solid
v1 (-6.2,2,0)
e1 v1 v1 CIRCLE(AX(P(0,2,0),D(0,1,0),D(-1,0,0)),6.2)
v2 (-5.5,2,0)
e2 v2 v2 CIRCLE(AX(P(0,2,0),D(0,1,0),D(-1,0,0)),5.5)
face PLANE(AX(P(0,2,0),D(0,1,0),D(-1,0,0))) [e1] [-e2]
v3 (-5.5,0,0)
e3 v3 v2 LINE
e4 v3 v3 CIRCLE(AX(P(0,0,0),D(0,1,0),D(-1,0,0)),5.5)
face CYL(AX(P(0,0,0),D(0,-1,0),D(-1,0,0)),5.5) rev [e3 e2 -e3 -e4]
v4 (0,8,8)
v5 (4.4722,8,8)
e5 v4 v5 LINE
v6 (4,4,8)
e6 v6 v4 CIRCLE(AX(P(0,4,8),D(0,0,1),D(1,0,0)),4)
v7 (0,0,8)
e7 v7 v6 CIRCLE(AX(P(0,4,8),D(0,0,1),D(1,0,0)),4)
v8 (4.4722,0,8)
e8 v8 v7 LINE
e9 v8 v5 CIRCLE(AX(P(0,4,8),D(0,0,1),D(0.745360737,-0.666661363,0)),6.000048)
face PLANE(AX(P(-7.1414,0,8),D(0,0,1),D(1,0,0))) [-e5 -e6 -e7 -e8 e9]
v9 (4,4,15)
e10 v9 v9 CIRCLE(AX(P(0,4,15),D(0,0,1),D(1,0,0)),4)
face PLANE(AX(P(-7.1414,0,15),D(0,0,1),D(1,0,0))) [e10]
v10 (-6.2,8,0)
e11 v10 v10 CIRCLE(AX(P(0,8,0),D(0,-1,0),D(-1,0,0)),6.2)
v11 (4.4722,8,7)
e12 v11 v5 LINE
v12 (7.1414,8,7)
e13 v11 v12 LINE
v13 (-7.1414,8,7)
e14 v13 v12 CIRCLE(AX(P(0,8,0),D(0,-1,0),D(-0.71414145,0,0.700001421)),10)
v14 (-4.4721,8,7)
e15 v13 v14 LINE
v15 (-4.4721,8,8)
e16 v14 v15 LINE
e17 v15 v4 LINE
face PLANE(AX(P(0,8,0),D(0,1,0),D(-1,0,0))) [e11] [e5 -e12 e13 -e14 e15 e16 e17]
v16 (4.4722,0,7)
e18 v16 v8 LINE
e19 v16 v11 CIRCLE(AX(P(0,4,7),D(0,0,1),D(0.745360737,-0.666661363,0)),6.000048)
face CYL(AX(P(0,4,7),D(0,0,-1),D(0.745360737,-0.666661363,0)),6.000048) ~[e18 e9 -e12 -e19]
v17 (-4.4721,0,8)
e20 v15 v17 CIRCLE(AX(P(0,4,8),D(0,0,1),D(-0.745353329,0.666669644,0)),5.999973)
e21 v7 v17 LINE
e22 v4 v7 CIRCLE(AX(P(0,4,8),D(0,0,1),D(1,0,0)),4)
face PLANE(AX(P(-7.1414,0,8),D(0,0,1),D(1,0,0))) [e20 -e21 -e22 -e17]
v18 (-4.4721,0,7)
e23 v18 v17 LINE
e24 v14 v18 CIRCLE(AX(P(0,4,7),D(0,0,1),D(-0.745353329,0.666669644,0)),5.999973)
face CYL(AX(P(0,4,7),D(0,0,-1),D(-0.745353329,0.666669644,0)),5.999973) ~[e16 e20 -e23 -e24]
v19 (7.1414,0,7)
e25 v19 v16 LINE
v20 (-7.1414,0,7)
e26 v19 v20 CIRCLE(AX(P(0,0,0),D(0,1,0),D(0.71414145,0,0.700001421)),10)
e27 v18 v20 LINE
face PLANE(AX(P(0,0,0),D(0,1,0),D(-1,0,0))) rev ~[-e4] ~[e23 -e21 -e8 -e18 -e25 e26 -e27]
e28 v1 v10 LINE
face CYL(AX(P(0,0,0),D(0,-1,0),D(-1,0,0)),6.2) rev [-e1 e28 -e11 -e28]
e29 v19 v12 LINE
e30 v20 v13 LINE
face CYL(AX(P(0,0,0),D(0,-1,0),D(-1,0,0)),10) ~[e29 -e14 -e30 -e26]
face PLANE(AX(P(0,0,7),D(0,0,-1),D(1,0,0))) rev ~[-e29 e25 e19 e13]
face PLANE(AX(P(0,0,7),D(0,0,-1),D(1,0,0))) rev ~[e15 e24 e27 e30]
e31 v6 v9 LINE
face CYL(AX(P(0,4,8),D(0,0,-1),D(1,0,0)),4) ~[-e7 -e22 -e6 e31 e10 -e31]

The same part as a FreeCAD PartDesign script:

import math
import FreeCAD as App
import Part
import Sketcher

doc = App.newDocument("Part")
body = doc.addObject("PartDesign::Body", "Body")

# Sketch on XZ plane
sketch1 = doc.addObject("Sketcher::SketchObject", "Sketch")
body.addObject(sketch1)
sketch1.AttachmentSupport = (doc.XZ_Plane, [""])
sketch1.MapMode = "FlatFace"
sketch1.addGeometry(Part.LineSegment(App.Vector(-7, 7, 0), App.Vector(7, 7, 0)), False)
sketch1.addGeometry(Part.ArcOfCircle(Part.Circle(App.Vector(0, 0, 0), App.Vector(0, 0, 1), 10), math.radians(136), math.radians(404)), False)
sketch1.addGeometry(Part.Circle(App.Vector(0, 0, 0), App.Vector(0, 0, 1), 6), False)
sketch1.addConstraint(Sketcher.Constraint("Coincident", 0, 1, 1, 1))
sketch1.addConstraint(Sketcher.Constraint("Coincident", 1, 2, 0, 2))
sketch1.addConstraint(Sketcher.Constraint("Horizontal", 0))
sketch1.addConstraint(Sketcher.Constraint("Coincident", 1, 3, -1, 1))
sketch1.addConstraint(Sketcher.Constraint("Coincident", 2, 3, -1, 1))
sketch1.addConstraint(Sketcher.Constraint("Radius", 1, 10.0))
sketch1.addConstraint(Sketcher.Constraint("Diameter", 2, 12.4))
sketch1.addConstraint(Sketcher.Constraint("DistanceY", -1, 1, 0, 1, 7.0))
pad1 = doc.addObject("PartDesign::Pad", "Pad")
body.addObject(pad1)
pad1.Profile = sketch1
pad1.Length = 8
pad1.Reversed = True

# Sketch on XY plane
sketch2 = doc.addObject("Sketcher::SketchObject", "Sketch001")
body.addObject(sketch2)
sketch2.AttachmentSupport = (doc.XY_Plane, [""])
sketch2.MapMode = "FlatFace"
sketch2.AttachmentOffset = App.Placement(App.Vector(0, 0, 7), App.Rotation())
sketch2.addGeometry(Part.ArcOfCircle(Part.Circle(App.Vector(0, 4, 0), App.Vector(0, 0, 1), 6), math.radians(138), math.radians(222)), False)
sketch2.addGeometry(Part.LineSegment(App.Vector(-4, 0, 0), App.Vector(4, 0, 0)), False)
sketch2.addGeometry(Part.ArcOfCircle(Part.Circle(App.Vector(0, 4, 0), App.Vector(0, 0, 1), 6), math.radians(-42), math.radians(42)), False)
sketch2.addGeometry(Part.LineSegment(App.Vector(4, 8, 0), App.Vector(-4, 8, 0)), False)
sketch2.addConstraint(Sketcher.Constraint("Coincident", 0, 2, 1, 1))
sketch2.addConstraint(Sketcher.Constraint("Coincident", 1, 2, 2, 1))
sketch2.addConstraint(Sketcher.Constraint("Coincident", 2, 2, 3, 1))
sketch2.addConstraint(Sketcher.Constraint("Coincident", 3, 2, 0, 1))
sketch2.addConstraint(Sketcher.Constraint("Horizontal", 1))
sketch2.addConstraint(Sketcher.Constraint("Horizontal", 3))
sketch2.addConstraint(Sketcher.Constraint("Coincident", 2, 3, 0, 3))
sketch2.addConstraint(Sketcher.Constraint("Equal", 0, 2))
sketch2.addConstraint(Sketcher.Constraint("Symmetric", 0, 2, 1, 2, -1, 1))
sketch2.addConstraint(Sketcher.Constraint("Vertical", 1, 2, 2, 2))
sketch2.addConstraint(Sketcher.Constraint("Radius", 0, 6.0))
sketch2.addConstraint(Sketcher.Constraint("DistanceY", -1, 1, 0, 3, 4.0))
pad2 = doc.addObject("PartDesign::Pad", "Pad001")
body.addObject(pad2)
pad2.Profile = sketch2
pad2.Length = 1

# Sketch on XY plane
sketch3 = doc.addObject("Sketcher::SketchObject", "Sketch002")
body.addObject(sketch3)
sketch3.AttachmentSupport = (doc.XY_Plane, [""])
sketch3.MapMode = "FlatFace"
sketch3.AttachmentOffset = App.Placement(App.Vector(0, 0, 8), App.Rotation())
sketch3.addGeometry(Part.Circle(App.Vector(0, 4, 0), App.Vector(0, 0, 1), 4), False)
sketch3.addConstraint(Sketcher.Constraint("PointOnObject", 0, 3, -2))
sketch3.addConstraint(Sketcher.Constraint("Diameter", 0, 8.0))
sketch3.addConstraint(Sketcher.Constraint("DistanceY", -1, 1, 0, 3, 4.0))
pad3 = doc.addObject("PartDesign::Pad", "Pad002")
body.addObject(pad3)
pad3.Profile = sketch3
pad3.Length = 7

# Sketch on XZ plane
sketch4 = doc.addObject("Sketcher::SketchObject", "Sketch003")
body.addObject(sketch4)
sketch4.AttachmentSupport = (doc.XZ_Plane, [""])
sketch4.MapMode = "FlatFace"
sketch4.addGeometry(Part.Circle(App.Vector(0, 0, 0), App.Vector(0, 0, 1), 6), False)
sketch4.addGeometry(Part.Circle(App.Vector(0, 0, 0), App.Vector(0, 0, 1), 6), False)
sketch4.addConstraint(Sketcher.Constraint("Coincident", 0, 3, -1, 1))
sketch4.addConstraint(Sketcher.Constraint("Coincident", 1, 3, -1, 1))
sketch4.addConstraint(Sketcher.Constraint("Diameter", 1, 11.0))
sketch4.addConstraint(Sketcher.Constraint("Diameter", 0, 12.4))
pad4 = doc.addObject("PartDesign::Pad", "Pad003")
body.addObject(pad4)
pad4.Profile = sketch4
pad4.Length = 2
pad4.Reversed = True

doc.recompute()
